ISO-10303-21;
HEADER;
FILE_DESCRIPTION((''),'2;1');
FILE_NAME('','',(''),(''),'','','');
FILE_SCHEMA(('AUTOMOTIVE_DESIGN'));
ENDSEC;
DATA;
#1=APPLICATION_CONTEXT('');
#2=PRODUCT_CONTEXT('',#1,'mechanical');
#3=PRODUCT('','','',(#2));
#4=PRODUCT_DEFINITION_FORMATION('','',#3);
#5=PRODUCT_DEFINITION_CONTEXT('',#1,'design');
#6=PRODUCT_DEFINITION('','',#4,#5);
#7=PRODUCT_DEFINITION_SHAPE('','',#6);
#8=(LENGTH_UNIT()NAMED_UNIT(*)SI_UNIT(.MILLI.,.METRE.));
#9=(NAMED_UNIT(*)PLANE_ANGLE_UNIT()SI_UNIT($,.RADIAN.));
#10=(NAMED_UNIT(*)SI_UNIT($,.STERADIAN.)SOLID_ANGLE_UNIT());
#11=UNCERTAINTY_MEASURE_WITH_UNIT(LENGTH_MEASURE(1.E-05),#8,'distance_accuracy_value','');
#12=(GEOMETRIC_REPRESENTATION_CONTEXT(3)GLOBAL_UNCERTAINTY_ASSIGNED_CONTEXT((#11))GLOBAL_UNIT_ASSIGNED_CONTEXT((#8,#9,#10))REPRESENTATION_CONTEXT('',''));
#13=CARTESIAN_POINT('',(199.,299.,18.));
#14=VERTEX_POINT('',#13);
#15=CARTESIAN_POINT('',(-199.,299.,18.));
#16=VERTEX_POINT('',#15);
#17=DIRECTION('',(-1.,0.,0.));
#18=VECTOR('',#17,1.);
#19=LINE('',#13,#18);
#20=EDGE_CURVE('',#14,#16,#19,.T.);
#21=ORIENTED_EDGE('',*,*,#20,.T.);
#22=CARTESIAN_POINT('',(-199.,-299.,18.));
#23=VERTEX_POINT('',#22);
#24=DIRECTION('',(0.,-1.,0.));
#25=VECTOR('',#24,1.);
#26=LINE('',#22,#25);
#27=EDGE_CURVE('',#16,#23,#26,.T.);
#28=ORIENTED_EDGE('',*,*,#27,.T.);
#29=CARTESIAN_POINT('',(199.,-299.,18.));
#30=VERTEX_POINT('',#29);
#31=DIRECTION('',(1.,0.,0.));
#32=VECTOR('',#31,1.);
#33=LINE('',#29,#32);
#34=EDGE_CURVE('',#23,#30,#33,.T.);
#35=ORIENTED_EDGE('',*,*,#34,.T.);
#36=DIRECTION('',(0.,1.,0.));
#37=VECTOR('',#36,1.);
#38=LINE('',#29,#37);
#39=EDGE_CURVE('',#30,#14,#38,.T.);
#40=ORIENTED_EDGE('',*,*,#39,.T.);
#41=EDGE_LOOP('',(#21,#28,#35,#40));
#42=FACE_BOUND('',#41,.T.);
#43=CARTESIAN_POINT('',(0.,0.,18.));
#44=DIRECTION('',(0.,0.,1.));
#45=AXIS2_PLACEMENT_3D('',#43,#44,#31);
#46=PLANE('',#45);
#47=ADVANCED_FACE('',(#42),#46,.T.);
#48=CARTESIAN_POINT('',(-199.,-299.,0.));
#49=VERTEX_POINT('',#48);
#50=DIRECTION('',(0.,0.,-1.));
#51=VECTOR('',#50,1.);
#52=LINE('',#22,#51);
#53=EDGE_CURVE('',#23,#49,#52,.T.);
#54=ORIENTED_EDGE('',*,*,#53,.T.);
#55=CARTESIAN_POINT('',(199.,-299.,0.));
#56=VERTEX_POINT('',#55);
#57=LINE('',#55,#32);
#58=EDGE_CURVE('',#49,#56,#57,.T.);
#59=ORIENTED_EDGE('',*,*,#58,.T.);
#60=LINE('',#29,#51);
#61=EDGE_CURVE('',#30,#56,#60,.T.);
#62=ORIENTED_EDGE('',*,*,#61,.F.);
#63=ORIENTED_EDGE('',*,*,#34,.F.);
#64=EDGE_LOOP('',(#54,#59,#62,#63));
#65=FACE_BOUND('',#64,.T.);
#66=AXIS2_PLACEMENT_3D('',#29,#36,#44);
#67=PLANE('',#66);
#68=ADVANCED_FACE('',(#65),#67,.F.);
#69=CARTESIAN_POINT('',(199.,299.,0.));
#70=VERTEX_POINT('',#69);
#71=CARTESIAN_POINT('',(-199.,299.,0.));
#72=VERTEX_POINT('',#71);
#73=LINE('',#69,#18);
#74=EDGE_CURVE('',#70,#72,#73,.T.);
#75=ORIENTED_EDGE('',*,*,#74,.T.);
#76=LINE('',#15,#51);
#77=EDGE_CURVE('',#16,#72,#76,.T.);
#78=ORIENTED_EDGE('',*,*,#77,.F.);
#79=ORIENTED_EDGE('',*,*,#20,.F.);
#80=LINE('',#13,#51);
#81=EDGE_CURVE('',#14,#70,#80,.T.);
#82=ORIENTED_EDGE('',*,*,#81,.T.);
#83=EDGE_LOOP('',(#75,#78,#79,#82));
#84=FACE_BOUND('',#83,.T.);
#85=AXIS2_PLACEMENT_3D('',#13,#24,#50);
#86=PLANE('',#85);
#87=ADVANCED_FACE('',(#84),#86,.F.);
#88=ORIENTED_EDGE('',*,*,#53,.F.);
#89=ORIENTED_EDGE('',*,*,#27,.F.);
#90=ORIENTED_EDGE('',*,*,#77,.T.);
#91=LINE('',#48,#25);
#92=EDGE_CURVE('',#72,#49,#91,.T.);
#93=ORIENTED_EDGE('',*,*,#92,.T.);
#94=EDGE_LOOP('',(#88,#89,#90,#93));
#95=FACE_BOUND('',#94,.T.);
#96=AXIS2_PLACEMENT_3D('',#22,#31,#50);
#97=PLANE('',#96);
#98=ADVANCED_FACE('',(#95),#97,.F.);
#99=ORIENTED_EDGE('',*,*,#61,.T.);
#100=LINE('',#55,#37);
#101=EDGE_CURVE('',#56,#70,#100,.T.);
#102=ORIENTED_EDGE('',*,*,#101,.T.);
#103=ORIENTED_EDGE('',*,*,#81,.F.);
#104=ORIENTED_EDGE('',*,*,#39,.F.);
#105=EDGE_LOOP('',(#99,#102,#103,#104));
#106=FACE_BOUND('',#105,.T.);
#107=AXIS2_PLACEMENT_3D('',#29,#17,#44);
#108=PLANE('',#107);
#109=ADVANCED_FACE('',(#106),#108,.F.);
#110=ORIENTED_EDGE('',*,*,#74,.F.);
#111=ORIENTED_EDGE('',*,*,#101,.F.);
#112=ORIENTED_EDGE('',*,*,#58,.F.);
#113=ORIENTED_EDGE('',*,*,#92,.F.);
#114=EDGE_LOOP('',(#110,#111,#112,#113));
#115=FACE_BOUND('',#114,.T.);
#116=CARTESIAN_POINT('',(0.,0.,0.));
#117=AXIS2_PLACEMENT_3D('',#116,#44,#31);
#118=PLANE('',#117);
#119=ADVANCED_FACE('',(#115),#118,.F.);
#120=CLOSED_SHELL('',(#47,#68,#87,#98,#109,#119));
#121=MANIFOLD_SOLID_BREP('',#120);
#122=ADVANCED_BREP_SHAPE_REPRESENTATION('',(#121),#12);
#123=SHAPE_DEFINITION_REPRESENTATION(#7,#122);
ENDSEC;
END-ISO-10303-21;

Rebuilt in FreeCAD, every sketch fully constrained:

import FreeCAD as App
import Part
import Sketcher

doc = App.newDocument("Part")
body = doc.addObject("PartDesign::Body", "Body")

# Sketch on XY plane
sketch1 = doc.addObject("Sketcher::SketchObject", "Sketch")
body.addObject(sketch1)
sketch1.AttachmentSupport = (doc.XY_Plane, [""])
sketch1.MapMode = "FlatFace"
sketch1.addGeometry(Part.LineSegment(App.Vector(-199, 299, 0), App.Vector(-199, -299, 0)), False)
sketch1.addGeometry(Part.LineSegment(App.Vector(-199, -299, 0), App.Vector(199, -299, 0)), False)
sketch1.addGeometry(Part.LineSegment(App.Vector(199, -299, 0), App.Vector(199, 299, 0)), False)
sketch1.addGeometry(Part.LineSegment(App.Vector(199, 299, 0), App.Vector(-199, 299, 0)), False)
sketch1.addConstraint(Sketcher.Constraint("Coincident", 0, 2, 1, 1))
sketch1.addConstraint(Sketcher.Constraint("Coincident", 1, 2, 2, 1))
sketch1.addConstraint(Sketcher.Constraint("Coincident", 2, 2, 3, 1))
sketch1.addConstraint(Sketcher.Constraint("Coincident", 3, 2, 0, 1))
sketch1.addConstraint(Sketcher.Constraint("Vertical", 0))
sketch1.addConstraint(Sketcher.Constraint("Horizontal", 1))
sketch1.addConstraint(Sketcher.Constraint("Vertical", 2))
sketch1.addConstraint(Sketcher.Constraint("Horizontal", 3))
sketch1.addConstraint(Sketcher.Constraint("Symmetric", 0, 2, 2, 2, -1, 1))
sketch1.addConstraint(Sketcher.Constraint("DistanceX", 1, 1, 1, 2, 398.0))
sketch1.addConstraint(Sketcher.Constraint("DistanceY", 0, 2, 0, 1, 598.0))
pad1 = doc.addObject("PartDesign::Pad", "Pad")
body.addObject(pad1)
pad1.Profile = sketch1
pad1.Length = 18

doc.recompute()
